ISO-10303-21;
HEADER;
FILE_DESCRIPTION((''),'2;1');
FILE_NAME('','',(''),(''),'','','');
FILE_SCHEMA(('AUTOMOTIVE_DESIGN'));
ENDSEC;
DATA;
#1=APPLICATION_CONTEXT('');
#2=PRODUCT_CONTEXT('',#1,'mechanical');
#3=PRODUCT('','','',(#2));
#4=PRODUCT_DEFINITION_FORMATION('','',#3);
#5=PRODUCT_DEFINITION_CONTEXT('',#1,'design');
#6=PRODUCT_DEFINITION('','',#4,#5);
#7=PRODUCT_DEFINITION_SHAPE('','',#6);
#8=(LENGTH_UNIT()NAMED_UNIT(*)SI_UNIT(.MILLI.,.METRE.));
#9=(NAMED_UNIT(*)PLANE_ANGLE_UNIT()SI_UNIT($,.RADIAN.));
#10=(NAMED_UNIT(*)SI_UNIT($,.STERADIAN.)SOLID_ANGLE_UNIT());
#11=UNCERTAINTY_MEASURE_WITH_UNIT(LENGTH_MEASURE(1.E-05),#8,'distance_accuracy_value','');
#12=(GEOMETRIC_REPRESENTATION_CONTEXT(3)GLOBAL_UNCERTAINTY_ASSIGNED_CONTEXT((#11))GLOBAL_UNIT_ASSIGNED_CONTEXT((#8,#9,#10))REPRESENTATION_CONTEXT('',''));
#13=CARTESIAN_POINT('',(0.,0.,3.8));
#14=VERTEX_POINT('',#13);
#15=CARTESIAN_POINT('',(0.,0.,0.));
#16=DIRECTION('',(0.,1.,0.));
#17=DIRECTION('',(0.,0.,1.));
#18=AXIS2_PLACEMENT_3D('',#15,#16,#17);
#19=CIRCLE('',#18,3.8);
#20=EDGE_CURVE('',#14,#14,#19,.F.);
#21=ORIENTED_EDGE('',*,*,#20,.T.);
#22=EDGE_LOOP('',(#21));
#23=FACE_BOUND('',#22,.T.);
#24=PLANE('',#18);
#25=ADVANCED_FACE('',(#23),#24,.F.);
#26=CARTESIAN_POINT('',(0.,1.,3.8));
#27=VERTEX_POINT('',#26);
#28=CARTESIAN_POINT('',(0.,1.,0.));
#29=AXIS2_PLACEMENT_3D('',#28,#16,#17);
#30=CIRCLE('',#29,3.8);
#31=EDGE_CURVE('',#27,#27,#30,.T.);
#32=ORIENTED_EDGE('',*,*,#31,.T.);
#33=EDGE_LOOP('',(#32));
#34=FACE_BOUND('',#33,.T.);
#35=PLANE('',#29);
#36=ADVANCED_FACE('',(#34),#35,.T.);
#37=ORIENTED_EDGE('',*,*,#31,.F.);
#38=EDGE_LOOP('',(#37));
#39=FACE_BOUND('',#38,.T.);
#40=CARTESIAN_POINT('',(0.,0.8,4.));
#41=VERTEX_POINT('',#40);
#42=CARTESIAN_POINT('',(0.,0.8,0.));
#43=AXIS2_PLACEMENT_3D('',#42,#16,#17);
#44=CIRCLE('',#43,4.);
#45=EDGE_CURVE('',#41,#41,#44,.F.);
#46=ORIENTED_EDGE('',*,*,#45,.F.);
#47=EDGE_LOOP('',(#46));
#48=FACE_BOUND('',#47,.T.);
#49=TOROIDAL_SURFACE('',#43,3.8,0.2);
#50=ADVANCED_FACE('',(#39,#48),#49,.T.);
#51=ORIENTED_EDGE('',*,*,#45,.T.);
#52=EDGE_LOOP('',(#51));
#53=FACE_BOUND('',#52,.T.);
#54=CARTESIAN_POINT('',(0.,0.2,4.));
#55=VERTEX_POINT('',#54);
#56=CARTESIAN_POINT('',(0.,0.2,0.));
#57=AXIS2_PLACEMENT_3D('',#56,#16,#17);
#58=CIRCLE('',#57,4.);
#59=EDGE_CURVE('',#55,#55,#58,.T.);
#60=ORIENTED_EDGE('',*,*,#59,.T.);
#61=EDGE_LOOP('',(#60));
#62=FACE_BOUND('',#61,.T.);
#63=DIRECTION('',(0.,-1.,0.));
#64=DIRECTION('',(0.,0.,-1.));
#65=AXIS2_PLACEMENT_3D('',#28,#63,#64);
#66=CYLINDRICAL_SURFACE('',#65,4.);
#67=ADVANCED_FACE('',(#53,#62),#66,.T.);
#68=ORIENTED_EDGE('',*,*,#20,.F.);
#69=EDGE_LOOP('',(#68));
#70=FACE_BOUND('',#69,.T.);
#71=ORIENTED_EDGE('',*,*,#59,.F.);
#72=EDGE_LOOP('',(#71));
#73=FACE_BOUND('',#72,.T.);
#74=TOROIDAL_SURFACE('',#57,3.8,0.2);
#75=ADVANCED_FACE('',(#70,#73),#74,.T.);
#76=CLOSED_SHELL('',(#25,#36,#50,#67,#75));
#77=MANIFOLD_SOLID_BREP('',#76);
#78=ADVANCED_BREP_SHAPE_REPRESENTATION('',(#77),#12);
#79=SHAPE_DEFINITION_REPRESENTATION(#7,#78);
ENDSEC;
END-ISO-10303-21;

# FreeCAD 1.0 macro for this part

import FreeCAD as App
import Part
import Sketcher
from FreeCAD import Vector


def edges_at(feature, points):
    """Names of the edges that pass closest to the given points."""
    edges = feature.Shape.Edges
    near = lambda p: min(range(len(edges)), key=lambda i: edges[i].distToShape(Part.Vertex(*p))[0])
    return sorted({f"Edge{near(p) + 1}" for p in points})

doc = App.newDocument("Part")
body = doc.addObject("PartDesign::Body", "Body")

# Sketch on XZ plane
sketch1 = doc.addObject("Sketcher::SketchObject", "Sketch")
body.addObject(sketch1)
sketch1.AttachmentSupport = (doc.XZ_Plane, [""])
sketch1.MapMode = "FlatFace"
sketch1.addGeometry(Part.Circle(Vector(0, 0, 0), Vector(0, 0, 1), 4), False)
sketch1.addConstraint([
    Sketcher.Constraint("Coincident", 0, 3, -1, 1),
    Sketcher.Constraint("Diameter", 0, 8.0),
])
pad1 = doc.addObject("PartDesign::Pad", "Pad")
body.addObject(pad1)
pad1.Profile = sketch1
pad1.Length = 1
pad1.Reversed = True
doc.recompute()

fillet = doc.addObject("PartDesign::Fillet", "Fillet")
body.addObject(fillet)
fillet.Base = (pad1, edges_at(pad1, [(0, 0, -4), (0, 1, -4)]))
fillet.Radius = 0.2

doc.recompute()
